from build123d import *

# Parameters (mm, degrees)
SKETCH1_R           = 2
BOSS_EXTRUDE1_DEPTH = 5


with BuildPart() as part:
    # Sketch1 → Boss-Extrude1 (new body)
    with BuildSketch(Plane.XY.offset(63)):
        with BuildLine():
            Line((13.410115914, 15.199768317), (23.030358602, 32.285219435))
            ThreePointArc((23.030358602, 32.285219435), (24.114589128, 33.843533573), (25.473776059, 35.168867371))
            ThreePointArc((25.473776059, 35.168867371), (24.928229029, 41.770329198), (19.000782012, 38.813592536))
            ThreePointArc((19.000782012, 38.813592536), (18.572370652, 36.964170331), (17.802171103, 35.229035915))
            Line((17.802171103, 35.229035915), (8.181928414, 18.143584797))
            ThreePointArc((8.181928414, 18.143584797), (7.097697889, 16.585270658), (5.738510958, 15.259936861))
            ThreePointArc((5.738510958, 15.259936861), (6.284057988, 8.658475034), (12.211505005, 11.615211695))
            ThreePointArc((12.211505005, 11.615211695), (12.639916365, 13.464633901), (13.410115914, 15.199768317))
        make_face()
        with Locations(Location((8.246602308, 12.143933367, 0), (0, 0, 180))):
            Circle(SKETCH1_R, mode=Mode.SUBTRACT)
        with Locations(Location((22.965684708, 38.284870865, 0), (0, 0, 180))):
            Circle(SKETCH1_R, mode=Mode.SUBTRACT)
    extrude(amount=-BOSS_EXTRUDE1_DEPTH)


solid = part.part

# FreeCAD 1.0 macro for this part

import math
import FreeCAD as App
import Part
import Sketcher
Q = App.Units.Quantity

doc = App.newDocument("Part")
body = doc.addObject("PartDesign::Body", "Body")

sketch1 = body.newObject("Sketcher::SketchObject", "Sketch")
sketch1.AttachmentSupport = (doc.getObject("XY_Plane"), [""])
sketch1.MapMode = "FlatFace"
sketch1.AttachmentOffset = App.Placement(App.Vector(0, 0, 63), App.Rotation())
sketch1.addGeometry([
    Part.LineSegment(App.Vector(13.4, 15.2, 0), App.Vector(23, 32.3, 0)),
    Part.ArcOfCircle(Part.Circle(App.Vector(31.7, 27.4, 0), App.Vector(0, 0, 1), 10), math.radians(129), math.radians(151)),
    Part.ArcOfCircle(Part.Circle(App.Vector(23, 38.3, 0), App.Vector(0, 0, 1), 4), math.radians(-51), math.radians(172)),
    Part.ArcOfCircle(Part.Circle(App.Vector(9.1, 40.1, 0), App.Vector(0, 0, 1), 10), math.radians(-29), math.radians(-8)),
    Part.LineSegment(App.Vector(17.8, 35.2, 0), App.Vector(8.2, 18.1, 0)),
    Part.ArcOfCircle(Part.Circle(App.Vector(-0.5, 23, 0), App.Vector(0, 0, 1), 10), math.radians(-51), math.radians(-29)),
    Part.ArcOfCircle(Part.Circle(App.Vector(8.2, 12.1, 0), App.Vector(0, 0, 1), 4), math.radians(129), math.radians(352)),
    Part.ArcOfCircle(Part.Circle(App.Vector(22.1, 10.3, 0), App.Vector(0, 0, 1), 10), math.radians(151), math.radians(172)),
    Part.Circle(App.Vector(8.2, 12.1, 0), App.Vector(0, 0, 1), 2),
    Part.Circle(App.Vector(23, 38.3, 0), App.Vector(0, 0, 1), 2),
], False)
sketch1.addConstraint([
    Sketcher.Constraint("Tangent", 0, 2, 1, 2),
    Sketcher.Constraint("Tangent", 1, 1, 2, 1),
    Sketcher.Constraint("Tangent", 2, 2, 3, 2),
    Sketcher.Constraint("Tangent", 3, 1, 4, 1),
    Sketcher.Constraint("Tangent", 4, 2, 5, 2),
    Sketcher.Constraint("Tangent", 5, 1, 6, 1),
    Sketcher.Constraint("Tangent", 6, 2, 7, 2),
    Sketcher.Constraint("Tangent", 7, 1, 0, 1),
    Sketcher.Constraint("Coincident", 8, 3, 6, 3),
    Sketcher.Constraint("Coincident", 9, 3, 2, 3),
    Sketcher.Constraint("Equal", 1, 3),
    Sketcher.Constraint("Equal", 3, 5),
    Sketcher.Constraint("Equal", 2, 6),
    Sketcher.Constraint("Equal", 5, 7),
    Sketcher.Constraint("Equal", 8, 9),
    Sketcher.Constraint("Parallel", 0, 4),
    Sketcher.Constraint("Equal", 0, 4),
    Sketcher.Constraint("Diameter", 8, Q("4 mm")),
    Sketcher.Constraint("Radius", 1, Q("10 mm")),
    Sketcher.Constraint("Radius", 2, Q("4 mm")),
    Sketcher.Constraint("DistanceY", -1, 1, 1, 3, Q("27.378859 mm")),
    Sketcher.Constraint("DistanceY", -1, 1, 2, 3, Q("38.284871 mm")),
    Sketcher.Constraint("DistanceX", -1, 1, 7, 3, Q("22.123762 mm")),
    Sketcher.Constraint("DistanceX", -1, 1, 0, 2, Q("23.030359 mm")),
    Sketcher.Constraint("DistanceY", -1, 1, 0, 2, Q("32.285219 mm")),
    Sketcher.Constraint("DistanceX", -1, 1, 3, 1, Q("17.802171 mm")),
])
pad1 = body.newObject("PartDesign::Pad", "Pad")
pad1.Profile = sketch1
pad1.Length = 5
pad1.Reversed = True

doc.recompute()
